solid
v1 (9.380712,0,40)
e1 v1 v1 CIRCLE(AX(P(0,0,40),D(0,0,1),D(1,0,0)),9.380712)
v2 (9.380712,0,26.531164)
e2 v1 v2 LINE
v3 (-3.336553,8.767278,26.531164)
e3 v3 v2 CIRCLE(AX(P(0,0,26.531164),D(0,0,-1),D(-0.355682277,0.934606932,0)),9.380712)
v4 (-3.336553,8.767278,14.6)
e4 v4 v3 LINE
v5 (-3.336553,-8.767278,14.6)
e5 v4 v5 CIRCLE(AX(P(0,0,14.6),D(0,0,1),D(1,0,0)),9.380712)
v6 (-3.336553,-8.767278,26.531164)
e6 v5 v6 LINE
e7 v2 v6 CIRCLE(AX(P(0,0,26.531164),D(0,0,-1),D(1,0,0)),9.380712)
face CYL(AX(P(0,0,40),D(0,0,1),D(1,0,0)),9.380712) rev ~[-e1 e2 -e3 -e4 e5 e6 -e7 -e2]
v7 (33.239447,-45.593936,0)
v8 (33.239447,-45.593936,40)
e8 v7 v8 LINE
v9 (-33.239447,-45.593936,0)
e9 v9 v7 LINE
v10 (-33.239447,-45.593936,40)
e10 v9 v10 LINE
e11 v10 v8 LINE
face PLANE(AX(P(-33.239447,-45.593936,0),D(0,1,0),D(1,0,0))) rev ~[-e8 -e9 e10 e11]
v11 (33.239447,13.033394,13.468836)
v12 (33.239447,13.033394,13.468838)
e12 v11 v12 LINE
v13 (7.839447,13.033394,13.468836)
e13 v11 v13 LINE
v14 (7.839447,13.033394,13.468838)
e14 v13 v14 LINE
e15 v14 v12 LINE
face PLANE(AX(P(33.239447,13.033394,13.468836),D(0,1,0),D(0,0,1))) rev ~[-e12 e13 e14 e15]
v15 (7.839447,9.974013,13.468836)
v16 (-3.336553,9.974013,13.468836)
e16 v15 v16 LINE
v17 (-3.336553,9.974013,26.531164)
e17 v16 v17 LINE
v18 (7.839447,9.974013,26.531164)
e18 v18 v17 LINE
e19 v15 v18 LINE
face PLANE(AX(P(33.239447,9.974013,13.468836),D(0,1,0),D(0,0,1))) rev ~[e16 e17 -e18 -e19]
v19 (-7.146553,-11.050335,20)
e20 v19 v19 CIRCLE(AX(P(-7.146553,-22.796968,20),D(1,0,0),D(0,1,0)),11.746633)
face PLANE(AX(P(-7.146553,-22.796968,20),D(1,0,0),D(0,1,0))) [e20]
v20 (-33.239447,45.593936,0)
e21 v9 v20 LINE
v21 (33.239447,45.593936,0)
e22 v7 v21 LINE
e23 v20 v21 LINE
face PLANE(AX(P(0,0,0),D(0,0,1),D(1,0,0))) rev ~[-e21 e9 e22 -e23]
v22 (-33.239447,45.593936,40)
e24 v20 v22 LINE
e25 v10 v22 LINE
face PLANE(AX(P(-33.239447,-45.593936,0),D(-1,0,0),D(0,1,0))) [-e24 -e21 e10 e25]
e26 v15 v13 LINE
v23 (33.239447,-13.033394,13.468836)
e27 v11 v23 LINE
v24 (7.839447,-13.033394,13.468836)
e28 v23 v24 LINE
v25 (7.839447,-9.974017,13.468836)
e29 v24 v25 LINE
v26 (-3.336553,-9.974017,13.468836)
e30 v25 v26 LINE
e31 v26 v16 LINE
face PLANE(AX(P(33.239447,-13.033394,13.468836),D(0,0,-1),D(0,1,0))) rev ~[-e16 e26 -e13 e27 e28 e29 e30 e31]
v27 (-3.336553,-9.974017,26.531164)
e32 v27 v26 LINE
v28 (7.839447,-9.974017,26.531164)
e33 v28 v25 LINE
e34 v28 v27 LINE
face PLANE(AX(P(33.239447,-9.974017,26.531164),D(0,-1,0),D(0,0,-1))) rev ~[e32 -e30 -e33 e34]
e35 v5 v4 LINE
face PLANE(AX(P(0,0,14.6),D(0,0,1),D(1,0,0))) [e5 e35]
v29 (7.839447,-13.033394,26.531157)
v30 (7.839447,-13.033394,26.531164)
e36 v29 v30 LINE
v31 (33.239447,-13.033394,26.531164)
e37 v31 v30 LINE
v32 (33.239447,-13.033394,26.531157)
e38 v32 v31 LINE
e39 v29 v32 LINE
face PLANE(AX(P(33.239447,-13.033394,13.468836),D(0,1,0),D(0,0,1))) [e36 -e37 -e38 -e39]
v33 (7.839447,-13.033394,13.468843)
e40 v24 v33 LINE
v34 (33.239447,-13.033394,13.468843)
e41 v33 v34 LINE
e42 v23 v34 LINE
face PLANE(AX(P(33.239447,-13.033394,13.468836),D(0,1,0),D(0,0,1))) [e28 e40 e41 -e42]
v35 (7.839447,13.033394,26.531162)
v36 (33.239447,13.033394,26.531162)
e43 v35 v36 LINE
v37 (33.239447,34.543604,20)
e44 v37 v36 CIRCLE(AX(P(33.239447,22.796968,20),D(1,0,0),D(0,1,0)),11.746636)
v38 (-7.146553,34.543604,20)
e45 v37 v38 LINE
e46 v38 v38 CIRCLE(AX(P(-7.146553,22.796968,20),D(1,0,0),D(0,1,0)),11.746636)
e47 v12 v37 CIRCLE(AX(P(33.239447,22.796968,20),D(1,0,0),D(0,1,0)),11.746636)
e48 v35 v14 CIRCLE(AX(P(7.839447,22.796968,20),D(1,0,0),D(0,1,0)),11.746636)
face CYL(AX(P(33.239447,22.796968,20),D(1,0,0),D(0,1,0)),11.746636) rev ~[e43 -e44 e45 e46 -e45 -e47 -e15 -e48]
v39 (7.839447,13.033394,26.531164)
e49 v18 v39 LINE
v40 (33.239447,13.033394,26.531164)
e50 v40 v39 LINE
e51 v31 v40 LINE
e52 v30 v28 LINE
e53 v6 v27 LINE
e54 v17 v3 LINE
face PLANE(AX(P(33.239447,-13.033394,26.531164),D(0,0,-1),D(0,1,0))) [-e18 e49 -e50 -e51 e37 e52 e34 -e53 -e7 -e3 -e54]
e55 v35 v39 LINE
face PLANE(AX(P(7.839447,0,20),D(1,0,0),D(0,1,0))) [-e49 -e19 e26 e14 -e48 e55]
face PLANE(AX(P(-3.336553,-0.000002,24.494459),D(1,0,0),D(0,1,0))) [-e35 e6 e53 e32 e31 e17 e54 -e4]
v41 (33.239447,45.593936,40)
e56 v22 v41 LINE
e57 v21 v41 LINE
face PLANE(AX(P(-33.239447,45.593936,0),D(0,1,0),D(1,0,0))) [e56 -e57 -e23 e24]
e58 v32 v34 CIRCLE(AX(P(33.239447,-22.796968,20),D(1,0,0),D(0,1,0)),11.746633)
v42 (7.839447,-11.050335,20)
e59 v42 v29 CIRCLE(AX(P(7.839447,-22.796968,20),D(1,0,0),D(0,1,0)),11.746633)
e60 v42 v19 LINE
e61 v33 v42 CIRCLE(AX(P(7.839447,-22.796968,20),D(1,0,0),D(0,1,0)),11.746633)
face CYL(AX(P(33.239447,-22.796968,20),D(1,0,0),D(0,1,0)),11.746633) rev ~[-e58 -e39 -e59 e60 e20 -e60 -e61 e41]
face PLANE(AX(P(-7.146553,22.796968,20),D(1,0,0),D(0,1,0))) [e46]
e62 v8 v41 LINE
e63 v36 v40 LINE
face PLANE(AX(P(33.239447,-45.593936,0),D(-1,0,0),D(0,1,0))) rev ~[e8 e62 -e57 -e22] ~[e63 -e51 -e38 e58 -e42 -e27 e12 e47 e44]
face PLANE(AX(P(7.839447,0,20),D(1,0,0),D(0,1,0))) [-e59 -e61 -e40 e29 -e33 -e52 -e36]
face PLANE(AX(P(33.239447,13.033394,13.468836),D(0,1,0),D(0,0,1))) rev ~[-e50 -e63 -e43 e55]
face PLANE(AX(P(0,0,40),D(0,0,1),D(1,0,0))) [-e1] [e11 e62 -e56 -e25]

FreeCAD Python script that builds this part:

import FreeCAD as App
import Part
import Sketcher
Q = App.Units.Quantity

doc = App.newDocument("Part")
body = doc.addObject("PartDesign::Body", "Body")

# Sketch on XY plane
sketch1 = body.newObject("Sketcher::SketchObject", "Sketch")
sketch1.AttachmentSupport = (doc.getObject("XY_Plane"), [""])
sketch1.MapMode = "FlatFace"
sketch1.addGeometry([
    Part.LineSegment(App.Vector(-33, 46, 0), App.Vector(-33, -46, 0)),
    Part.LineSegment(App.Vector(-33, -46, 0), App.Vector(33, -46, 0)),
    Part.LineSegment(App.Vector(33, -46, 0), App.Vector(33, 46, 0)),
    Part.LineSegment(App.Vector(33, 46, 0), App.Vector(-33, 46, 0)),
], False)
sketch1.addConstraint([
    Sketcher.Constraint("Coincident", 0, 2, 1, 1),
    Sketcher.Constraint("Coincident", 1, 2, 2, 1),
    Sketcher.Constraint("Coincident", 2, 2, 3, 1),
    Sketcher.Constraint("Coincident", 3, 2, 0, 1),
    Sketcher.Constraint("Vertical", 0),
    Sketcher.Constraint("Horizontal", 1),
    Sketcher.Constraint("Vertical", 2),
    Sketcher.Constraint("Horizontal", 3),
    Sketcher.Constraint("Symmetric", 0, 2, 2, 2, -1, 1),
    Sketcher.Constraint("DistanceY", 0, 2, 0, 1, 91.187872),
    Sketcher.Constraint("DistanceX", 1, 1, 1, 2, 66.478894),
])
pad1 = body.newObject("PartDesign::Pad", "Pad")
pad1.Profile = sketch1
pad1.Length = 40

# Sketch on YZ plane
sketch2 = body.newObject("Sketcher::SketchObject", "Sketch001")
sketch2.AttachmentSupport = (doc.getObject("YZ_Plane"), [""])
sketch2.MapMode = "FlatFace"
sketch2.AttachmentOffset = App.Placement(App.Vector(0, 0, 33.239447), App.Rotation())
sketch2.addGeometry([
    Part.Circle(App.Vector(-23, 20, 0), App.Vector(0, 0, 1), 12),
    Part.Circle(App.Vector(23, 20, 0), App.Vector(0, 0, 1), 12),
], False)
sketch2.addConstraint([
    Sketcher.Constraint("Symmetric", 0, 3, 1, 3, -2),
    Sketcher.Constraint("Diameter", 0, 23.493266),
    Sketcher.Constraint("Diameter", 1, 23.493272),
    Sketcher.Constraint("DistanceY", -1, 1, 0, 3, 20.0),
    Sketcher.Constraint("DistanceX", 0, 3, -1, 1, 22.796968),
])
pocket1 = body.newObject("PartDesign::Pocket", "Pocket")
pocket1.Profile = sketch2
pocket1.Length = Q("1.59 in")

# Sketch on XY plane
sketch3 = body.newObject("Sketcher::SketchObject", "Sketch002")
sketch3.AttachmentSupport = (doc.getObject("XY_Plane"), [""])
sketch3.MapMode = "FlatFace"
sketch3.AttachmentOffset = App.Placement(App.Vector(0, 0, 40), App.Rotation())
sketch3.addGeometry(Part.Circle(App.Vector(0, 0, 0), App.Vector(0, 0, 1), 9), False)
sketch3.addConstraint([
    Sketcher.Constraint("Coincident", 0, 3, -1, 1),
    Sketcher.Constraint("Diameter", 0, 18.761424),
])
pocket2 = body.newObject("PartDesign::Pocket", "Pocket001")
pocket2.Profile = sketch3
pocket2.Length = Q("1 in")

# Sketch on YZ plane
sketch4 = body.newObject("Sketcher::SketchObject", "Sketch003")
sketch4.AttachmentSupport = (doc.getObject("YZ_Plane"), [""])
sketch4.MapMode = "FlatFace"
sketch4.AttachmentOffset = App.Placement(App.Vector(0, 0, 33.239447), App.Rotation())
sketch4.addGeometry([
    Part.LineSegment(App.Vector(-13, 27, 0), App.Vector(-13, 13, 0)),
    Part.LineSegment(App.Vector(-13, 13, 0), App.Vector(13, 13, 0)),
    Part.LineSegment(App.Vector(13, 13, 0), App.Vector(13, 27, 0)),
    Part.LineSegment(App.Vector(13, 27, 0), App.Vector(-13, 27, 0)),
], False)
sketch4.addConstraint([
    Sketcher.Constraint("Coincident", 0, 2, 1, 1),
    Sketcher.Constraint("Coincident", 1, 2, 2, 1),
    Sketcher.Constraint("Coincident", 2, 2, 3, 1),
    Sketcher.Constraint("Coincident", 3, 2, 0, 1),
    Sketcher.Constraint("Vertical", 0),
    Sketcher.Constraint("Horizontal", 1),
    Sketcher.Constraint("Vertical", 2),
    Sketcher.Constraint("Horizontal", 3),
    Sketcher.Constraint("DistanceY", 0, 2, 0, 1, 13.062328),
    Sketcher.Constraint("DistanceX", 1, 1, 1, 2, 26.066788),
    Sketcher.Constraint("DistanceX", 0, 2, -1, 1, 13.033394),
    Sketcher.Constraint("DistanceY", -1, 1, 0, 2, 13.468836),
])
pocket3 = body.newObject("PartDesign::Pocket", "Pocket002")
pocket3.Profile = sketch4
pocket3.Length = Q("1 in")

# Sketch on YZ plane
sketch5 = body.newObject("Sketcher::SketchObject", "Sketch004")
sketch5.AttachmentSupport = (doc.getObject("YZ_Plane"), [""])
sketch5.MapMode = "FlatFace"
sketch5.AttachmentOffset = App.Placement(App.Vector(0, 0, 33.239447), App.Rotation())
sketch5.addGeometry([
    Part.LineSegment(App.Vector(-10, 27, 0), App.Vector(-10, 13, 0)),
    Part.LineSegment(App.Vector(-10, 13, 0), App.Vector(10, 13, 0)),
    Part.LineSegment(App.Vector(10, 13, 0), App.Vector(10, 27, 0)),
    Part.LineSegment(App.Vector(10, 27, 0), App.Vector(-10, 27, 0)),
], False)
sketch5.addConstraint([
    Sketcher.Constraint("Coincident", 0, 2, 1, 1),
    Sketcher.Constraint("Coincident", 1, 2, 2, 1),
    Sketcher.Constraint("Coincident", 2, 2, 3, 1),
    Sketcher.Constraint("Coincident", 3, 2, 0, 1),
    Sketcher.Constraint("Vertical", 0),
    Sketcher.Constraint("Horizontal", 1),
    Sketcher.Constraint("Vertical", 2),
    Sketcher.Constraint("Horizontal", 3),
    Sketcher.Constraint("DistanceX", 1, 1, 1, 2, 19.94803),
    Sketcher.Constraint("DistanceY", 0, 2, 0, 1, 13.062328),
    Sketcher.Constraint("DistanceX", 0, 2, -1, 1, 9.974017),
    Sketcher.Constraint("DistanceY", -1, 1, 0, 2, 13.468836),
])
pocket4 = body.newObject("PartDesign::Pocket", "Pocket003")
pocket4.Profile = sketch5
pocket4.Length = Q("1.44 in")

doc.recompute()
